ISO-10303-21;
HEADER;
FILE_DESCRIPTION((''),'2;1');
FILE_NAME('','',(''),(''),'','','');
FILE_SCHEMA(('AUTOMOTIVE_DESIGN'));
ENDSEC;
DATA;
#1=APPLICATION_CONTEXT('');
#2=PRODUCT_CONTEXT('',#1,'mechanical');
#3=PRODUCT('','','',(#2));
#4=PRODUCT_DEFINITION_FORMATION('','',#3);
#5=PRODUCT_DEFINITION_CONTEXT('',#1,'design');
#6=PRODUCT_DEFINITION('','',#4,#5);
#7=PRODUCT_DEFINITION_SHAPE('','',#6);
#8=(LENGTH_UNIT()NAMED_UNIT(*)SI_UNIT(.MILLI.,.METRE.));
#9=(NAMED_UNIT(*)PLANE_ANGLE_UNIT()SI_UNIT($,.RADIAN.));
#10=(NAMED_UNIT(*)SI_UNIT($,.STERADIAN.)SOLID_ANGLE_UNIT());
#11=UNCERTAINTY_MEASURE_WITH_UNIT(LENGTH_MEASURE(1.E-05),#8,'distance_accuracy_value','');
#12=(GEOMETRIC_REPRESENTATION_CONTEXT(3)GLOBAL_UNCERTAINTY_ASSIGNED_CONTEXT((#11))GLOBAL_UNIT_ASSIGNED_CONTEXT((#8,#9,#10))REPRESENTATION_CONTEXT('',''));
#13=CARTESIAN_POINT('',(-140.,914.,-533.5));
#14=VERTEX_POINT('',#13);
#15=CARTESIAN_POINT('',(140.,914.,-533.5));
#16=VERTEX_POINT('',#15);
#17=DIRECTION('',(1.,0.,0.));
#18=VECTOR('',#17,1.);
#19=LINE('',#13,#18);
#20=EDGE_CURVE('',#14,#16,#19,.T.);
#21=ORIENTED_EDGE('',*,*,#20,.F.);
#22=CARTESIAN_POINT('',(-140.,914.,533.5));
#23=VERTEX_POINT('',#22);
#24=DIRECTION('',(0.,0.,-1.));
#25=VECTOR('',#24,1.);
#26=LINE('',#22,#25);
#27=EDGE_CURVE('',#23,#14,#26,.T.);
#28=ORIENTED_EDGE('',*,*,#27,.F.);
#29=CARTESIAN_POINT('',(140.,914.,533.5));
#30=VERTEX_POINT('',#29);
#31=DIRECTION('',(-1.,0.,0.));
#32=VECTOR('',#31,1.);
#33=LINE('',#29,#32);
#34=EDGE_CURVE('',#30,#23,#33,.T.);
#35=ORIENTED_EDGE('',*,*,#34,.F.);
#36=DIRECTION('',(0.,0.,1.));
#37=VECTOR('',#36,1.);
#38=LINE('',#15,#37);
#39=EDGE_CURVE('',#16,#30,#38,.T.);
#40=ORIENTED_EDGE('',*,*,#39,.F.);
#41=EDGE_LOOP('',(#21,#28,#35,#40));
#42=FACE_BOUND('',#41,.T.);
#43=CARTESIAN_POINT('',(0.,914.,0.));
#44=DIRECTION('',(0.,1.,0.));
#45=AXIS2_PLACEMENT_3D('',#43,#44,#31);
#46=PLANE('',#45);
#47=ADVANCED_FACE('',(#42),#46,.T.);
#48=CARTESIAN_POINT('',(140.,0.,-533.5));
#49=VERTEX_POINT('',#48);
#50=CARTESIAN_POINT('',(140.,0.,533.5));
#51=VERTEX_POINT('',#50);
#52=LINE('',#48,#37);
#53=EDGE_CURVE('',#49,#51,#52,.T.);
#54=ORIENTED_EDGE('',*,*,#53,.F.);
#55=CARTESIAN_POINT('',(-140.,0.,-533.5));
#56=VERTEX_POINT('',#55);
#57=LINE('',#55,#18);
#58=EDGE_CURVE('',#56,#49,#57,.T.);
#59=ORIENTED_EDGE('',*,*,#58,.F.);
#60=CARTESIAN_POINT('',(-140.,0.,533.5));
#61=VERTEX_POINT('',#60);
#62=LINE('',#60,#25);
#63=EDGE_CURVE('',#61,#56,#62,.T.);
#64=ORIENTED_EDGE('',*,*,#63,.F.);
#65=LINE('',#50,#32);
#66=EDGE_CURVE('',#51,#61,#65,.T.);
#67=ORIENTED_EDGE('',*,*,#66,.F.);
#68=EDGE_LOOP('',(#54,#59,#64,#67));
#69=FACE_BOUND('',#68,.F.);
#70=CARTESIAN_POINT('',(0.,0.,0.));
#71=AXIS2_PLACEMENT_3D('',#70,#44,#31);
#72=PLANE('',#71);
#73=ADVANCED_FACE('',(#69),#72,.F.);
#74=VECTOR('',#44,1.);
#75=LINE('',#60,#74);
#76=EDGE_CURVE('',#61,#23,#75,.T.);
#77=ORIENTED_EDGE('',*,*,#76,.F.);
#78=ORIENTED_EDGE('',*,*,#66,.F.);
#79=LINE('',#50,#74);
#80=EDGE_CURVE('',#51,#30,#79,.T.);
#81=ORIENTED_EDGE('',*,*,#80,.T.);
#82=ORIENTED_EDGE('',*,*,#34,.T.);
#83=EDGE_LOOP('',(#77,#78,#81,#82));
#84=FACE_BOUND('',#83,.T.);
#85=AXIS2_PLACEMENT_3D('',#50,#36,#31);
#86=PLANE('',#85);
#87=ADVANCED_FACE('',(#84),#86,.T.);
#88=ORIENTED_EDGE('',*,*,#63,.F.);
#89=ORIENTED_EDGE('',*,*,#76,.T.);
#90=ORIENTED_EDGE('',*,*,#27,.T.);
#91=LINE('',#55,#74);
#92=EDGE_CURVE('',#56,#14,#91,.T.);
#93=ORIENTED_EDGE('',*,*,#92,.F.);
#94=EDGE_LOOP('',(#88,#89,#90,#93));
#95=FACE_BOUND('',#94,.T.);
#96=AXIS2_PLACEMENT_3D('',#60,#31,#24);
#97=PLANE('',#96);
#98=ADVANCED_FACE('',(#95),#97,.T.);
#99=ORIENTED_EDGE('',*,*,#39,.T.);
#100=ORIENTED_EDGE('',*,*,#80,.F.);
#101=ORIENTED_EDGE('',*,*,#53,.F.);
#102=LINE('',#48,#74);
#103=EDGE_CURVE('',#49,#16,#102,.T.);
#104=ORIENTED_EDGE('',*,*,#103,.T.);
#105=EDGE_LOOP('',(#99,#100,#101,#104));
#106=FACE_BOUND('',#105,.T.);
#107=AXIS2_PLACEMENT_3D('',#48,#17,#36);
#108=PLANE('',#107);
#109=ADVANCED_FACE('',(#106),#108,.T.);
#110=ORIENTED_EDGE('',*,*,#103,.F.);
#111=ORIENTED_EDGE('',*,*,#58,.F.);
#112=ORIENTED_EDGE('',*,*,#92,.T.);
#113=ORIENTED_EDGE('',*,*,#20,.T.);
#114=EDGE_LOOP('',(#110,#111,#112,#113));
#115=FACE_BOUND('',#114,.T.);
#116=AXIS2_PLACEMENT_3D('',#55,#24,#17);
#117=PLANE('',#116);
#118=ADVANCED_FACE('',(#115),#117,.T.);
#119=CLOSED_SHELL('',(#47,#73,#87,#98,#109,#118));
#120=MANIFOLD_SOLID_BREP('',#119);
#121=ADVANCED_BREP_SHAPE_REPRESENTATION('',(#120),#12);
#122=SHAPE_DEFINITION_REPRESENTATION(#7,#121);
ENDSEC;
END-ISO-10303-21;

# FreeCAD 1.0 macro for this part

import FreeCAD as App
import Part
import Sketcher
Q = App.Units.Quantity


def add_polygon(sketch, points):
    """Adds a closed chain of lines whose ends are joined by coincident constraints."""
    first, n = sketch.GeometryCount, len(points)
    for a, b in zip(points, points[1:] + points[:1]):
        sketch.addGeometry(Part.LineSegment(App.Vector(*a, 0), App.Vector(*b, 0)), False)
    for i in range(n):
        sketch.addConstraint(Sketcher.Constraint("Coincident", first + i, 2, first + (i + 1) % n, 1))

doc = App.newDocument("Part")
body = doc.addObject("PartDesign::Body", "Body")

sketch1 = doc.addObject("Sketcher::SketchObject", "Sketch")
body.addObject(sketch1)
sketch1.AttachmentSupport = (doc.XZ_Plane, [""])
sketch1.MapMode = "FlatFace"
add_polygon(sketch1, [(140, -533.5), (-140, -533.5), (-140, 533.5), (140, 533.5)])
sketch1.addConstraint(Sketcher.Constraint("Horizontal", 0))
sketch1.addConstraint(Sketcher.Constraint("Vertical", 1))
sketch1.addConstraint(Sketcher.Constraint("Horizontal", 2))
sketch1.addConstraint(Sketcher.Constraint("Vertical", 3))
sketch1.addConstraint(Sketcher.Constraint("Symmetric", 0, 2, 2, 2, -1, 1))
sketch1.addConstraint(Sketcher.Constraint("DistanceX", 0, 2, 0, 1, Q("280 mm")))
sketch1.addConstraint(Sketcher.Constraint("DistanceY", 1, 1, 1, 2, Q("1067 mm")))
pad1 = doc.addObject("PartDesign::Pad", "Pad")
body.addObject(pad1)
pad1.Profile = sketch1
pad1.Length = 914
pad1.Reversed = True

doc.recompute()
